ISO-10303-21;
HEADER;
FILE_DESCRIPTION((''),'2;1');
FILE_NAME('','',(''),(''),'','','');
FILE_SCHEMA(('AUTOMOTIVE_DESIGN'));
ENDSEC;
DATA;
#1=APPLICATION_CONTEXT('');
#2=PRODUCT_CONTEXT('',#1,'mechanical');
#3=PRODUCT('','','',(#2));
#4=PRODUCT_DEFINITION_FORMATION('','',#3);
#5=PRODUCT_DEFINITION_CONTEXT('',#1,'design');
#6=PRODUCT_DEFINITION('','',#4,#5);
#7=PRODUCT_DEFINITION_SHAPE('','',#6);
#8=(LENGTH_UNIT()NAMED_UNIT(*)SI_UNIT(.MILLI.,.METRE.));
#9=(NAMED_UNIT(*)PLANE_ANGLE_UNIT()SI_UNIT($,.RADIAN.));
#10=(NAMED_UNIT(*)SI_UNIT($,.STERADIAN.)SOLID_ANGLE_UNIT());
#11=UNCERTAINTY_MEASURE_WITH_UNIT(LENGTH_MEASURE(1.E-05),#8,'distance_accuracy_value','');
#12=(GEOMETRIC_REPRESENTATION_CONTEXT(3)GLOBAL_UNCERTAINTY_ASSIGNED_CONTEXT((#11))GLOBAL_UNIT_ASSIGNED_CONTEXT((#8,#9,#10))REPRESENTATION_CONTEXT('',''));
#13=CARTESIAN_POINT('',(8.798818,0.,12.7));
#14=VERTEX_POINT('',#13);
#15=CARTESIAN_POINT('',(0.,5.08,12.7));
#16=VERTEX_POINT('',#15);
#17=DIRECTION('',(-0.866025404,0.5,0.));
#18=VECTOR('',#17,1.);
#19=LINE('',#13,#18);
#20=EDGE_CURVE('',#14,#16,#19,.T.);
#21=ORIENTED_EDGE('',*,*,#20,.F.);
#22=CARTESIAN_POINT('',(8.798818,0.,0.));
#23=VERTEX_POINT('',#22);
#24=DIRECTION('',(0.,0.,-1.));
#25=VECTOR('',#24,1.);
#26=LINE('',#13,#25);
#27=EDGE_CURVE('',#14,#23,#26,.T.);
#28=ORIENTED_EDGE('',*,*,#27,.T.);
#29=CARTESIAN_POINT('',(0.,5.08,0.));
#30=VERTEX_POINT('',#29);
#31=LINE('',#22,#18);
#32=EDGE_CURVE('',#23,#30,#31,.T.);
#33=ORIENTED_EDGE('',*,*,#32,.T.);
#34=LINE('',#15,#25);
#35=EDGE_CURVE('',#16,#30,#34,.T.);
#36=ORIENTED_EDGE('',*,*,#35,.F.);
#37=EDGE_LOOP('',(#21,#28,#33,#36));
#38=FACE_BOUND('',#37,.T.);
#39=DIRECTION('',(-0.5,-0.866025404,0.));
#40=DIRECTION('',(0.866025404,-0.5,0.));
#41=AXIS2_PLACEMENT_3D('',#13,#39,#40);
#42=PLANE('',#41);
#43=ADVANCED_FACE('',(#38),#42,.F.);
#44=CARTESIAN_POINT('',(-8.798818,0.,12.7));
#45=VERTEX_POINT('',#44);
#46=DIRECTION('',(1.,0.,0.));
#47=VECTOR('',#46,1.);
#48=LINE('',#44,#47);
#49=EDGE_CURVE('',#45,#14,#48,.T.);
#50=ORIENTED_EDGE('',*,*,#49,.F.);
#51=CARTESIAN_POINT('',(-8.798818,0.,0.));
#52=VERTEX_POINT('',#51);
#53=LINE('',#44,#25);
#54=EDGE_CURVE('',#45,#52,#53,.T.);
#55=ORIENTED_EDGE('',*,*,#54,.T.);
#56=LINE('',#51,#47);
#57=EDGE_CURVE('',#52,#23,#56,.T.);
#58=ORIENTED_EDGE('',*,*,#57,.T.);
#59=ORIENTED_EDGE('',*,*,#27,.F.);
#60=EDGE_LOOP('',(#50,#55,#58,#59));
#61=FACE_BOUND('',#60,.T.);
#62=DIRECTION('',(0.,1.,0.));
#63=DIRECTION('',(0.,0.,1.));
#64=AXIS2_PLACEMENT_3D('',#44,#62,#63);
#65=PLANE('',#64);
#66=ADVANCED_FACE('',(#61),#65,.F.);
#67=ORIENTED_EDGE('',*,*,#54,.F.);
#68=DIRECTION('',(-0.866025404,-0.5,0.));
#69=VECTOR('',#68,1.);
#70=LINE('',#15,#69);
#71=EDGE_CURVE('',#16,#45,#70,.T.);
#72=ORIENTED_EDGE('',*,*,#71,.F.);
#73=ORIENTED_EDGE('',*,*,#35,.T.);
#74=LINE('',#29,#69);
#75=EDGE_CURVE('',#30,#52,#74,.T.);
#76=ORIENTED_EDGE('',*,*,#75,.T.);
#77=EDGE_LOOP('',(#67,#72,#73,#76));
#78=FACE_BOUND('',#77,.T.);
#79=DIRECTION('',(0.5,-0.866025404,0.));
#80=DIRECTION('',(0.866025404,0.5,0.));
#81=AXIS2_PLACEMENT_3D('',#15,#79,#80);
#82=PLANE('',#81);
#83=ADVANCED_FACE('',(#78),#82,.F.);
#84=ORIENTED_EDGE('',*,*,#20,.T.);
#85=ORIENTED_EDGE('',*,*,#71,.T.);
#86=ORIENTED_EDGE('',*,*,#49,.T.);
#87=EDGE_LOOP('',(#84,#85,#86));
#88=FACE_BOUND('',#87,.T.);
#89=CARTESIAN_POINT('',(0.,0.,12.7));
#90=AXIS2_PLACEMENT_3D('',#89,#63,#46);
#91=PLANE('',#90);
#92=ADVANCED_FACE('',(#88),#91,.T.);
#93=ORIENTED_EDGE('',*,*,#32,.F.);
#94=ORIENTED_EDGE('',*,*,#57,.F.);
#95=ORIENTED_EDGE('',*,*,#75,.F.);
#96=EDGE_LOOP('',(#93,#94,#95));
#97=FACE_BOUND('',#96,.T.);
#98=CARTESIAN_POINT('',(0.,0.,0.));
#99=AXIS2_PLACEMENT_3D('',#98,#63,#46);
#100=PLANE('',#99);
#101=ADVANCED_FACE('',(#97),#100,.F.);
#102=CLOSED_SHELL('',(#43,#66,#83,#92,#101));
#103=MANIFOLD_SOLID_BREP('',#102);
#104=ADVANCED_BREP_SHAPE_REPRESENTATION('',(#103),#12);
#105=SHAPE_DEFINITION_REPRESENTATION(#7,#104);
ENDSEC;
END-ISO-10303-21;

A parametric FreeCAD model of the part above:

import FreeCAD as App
import Part
import Sketcher
from FreeCAD import Vector
Q = App.Units.Quantity


def add_polygon(sketch, points):
    """Adds a closed chain of lines whose ends are joined by coincident constraints."""
    first, n = sketch.GeometryCount, len(points)
    for a, b in zip(points, points[1:] + points[:1]):
        sketch.addGeometry(Part.LineSegment(App.Vector(*a, 0), App.Vector(*b, 0)), False)
    for i in range(n):
        sketch.addConstraint(Sketcher.Constraint("Coincident", first + i, 2, first + (i + 1) % n, 1))

doc = App.newDocument("Part")
body = doc.addObject("PartDesign::Body", "Body")

# Sketch on XY plane
sketch1 = body.newObject("Sketcher::SketchObject", "Sketch")
sketch1.AttachmentSupport = (doc.getObject("XY_Plane"), [""])
sketch1.MapMode = "FlatFace"
add_polygon(sketch1, [(-9, 0), (9, 0), (0, 5)])  # lines 0-2
sketch1.addConstraint([
    Sketcher.Constraint("Horizontal", 0),
    Sketcher.Constraint("Symmetric", 0, 2, 2, 2, -1, 1),
    Sketcher.Constraint("PointOnObject", 1, 2, -2),
    Sketcher.Constraint("Angle", 1, Q("150 deg")),
    Sketcher.Constraint("Distance", 1, Q("0.4 in")),
])
pad1 = body.newObject("PartDesign::Pad", "Pad")
pad1.Profile = sketch1
pad1.Length = Q("0.5 in")

doc.recompute()
